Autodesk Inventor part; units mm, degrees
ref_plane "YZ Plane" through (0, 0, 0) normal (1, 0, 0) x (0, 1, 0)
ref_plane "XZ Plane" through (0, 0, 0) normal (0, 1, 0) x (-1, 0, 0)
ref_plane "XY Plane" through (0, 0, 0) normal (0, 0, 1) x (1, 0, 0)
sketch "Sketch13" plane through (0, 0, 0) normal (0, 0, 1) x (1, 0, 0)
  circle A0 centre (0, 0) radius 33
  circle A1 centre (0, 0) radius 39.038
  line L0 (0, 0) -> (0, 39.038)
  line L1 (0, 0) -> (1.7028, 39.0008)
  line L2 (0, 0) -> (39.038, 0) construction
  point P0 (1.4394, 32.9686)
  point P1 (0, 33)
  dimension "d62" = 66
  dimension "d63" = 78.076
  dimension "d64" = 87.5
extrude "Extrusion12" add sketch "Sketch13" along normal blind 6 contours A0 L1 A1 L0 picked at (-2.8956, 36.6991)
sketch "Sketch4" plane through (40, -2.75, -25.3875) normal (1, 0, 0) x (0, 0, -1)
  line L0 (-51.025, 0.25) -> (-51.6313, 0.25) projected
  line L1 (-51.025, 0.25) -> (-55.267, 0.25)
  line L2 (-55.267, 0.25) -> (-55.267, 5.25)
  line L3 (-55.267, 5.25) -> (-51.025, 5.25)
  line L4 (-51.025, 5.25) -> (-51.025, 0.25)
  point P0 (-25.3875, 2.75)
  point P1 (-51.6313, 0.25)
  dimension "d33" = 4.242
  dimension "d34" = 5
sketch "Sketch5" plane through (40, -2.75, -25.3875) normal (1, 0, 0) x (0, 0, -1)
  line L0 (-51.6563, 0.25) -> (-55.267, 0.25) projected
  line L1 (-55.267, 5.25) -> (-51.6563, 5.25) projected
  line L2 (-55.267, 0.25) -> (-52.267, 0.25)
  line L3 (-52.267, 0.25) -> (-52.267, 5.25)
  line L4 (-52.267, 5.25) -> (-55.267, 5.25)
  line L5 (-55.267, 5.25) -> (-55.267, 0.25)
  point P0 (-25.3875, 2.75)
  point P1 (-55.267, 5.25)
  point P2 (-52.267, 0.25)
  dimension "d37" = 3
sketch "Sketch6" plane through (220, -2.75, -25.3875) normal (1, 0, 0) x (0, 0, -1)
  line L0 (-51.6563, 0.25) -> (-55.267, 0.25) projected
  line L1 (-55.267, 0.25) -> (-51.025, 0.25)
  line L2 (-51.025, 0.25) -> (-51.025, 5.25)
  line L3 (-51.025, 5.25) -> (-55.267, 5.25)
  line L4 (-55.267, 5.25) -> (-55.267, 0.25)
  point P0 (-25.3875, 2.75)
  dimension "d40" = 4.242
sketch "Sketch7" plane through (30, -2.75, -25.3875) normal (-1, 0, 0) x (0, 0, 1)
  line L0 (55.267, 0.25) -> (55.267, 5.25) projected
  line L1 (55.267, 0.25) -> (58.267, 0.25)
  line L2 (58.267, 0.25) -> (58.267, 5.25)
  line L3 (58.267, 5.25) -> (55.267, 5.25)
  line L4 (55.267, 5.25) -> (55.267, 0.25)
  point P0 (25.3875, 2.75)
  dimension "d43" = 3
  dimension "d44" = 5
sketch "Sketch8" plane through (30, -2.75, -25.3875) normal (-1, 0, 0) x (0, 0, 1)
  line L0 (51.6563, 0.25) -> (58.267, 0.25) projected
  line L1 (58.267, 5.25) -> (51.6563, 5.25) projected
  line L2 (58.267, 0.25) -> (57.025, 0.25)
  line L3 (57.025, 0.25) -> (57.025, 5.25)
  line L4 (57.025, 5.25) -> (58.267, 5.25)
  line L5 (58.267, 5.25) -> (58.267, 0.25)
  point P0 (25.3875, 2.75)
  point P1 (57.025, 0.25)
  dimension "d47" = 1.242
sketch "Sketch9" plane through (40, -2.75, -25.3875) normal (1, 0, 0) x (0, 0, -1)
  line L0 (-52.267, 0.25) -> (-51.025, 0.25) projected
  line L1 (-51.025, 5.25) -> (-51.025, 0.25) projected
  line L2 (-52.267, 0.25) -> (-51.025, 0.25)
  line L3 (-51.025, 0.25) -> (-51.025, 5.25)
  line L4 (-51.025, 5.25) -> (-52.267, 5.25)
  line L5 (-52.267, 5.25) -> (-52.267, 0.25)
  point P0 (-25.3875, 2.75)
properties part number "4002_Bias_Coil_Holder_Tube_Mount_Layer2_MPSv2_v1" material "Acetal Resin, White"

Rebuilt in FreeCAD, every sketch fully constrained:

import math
import FreeCAD as App
import Part
import Sketcher

V = App.Vector
Q = App.Units.Quantity

doc = App.newDocument("Part")
body = doc.addObject("PartDesign::Body", "Body")

# Sketch on XY plane
sketch1 = body.newObject("Sketcher::SketchObject", "Sketch")
sketch1.AttachmentSupport = (doc.getObject("XY_Plane"), [""])
sketch1.MapMode = "FlatFace"
sketch1.addGeometry(Part.ArcOfCircle(Part.Circle(V(0, 0, 0), V(0, 0, 1), 33), math.radians(90), math.radians(448)), False)
sketch1.addGeometry(Part.LineSegment(V(0, 33, 0), V(0, 39, 0)), False)
sketch1.addGeometry(Part.ArcOfCircle(Part.Circle(V(0, 0, 0), V(0, 0, 1), 39), math.radians(90), math.radians(448)), False)
sketch1.addGeometry(Part.LineSegment(V(1.7, 39, 0), V(1.4, 33, 0)), False)
sketch1.addConstraint(Sketcher.Constraint("Coincident", 0, 1, 1, 1))
sketch1.addConstraint(Sketcher.Constraint("Coincident", 1, 2, 2, 1))
sketch1.addConstraint(Sketcher.Constraint("Coincident", 2, 2, 3, 1))
sketch1.addConstraint(Sketcher.Constraint("Coincident", 3, 2, 0, 2))
sketch1.addConstraint(Sketcher.Constraint("Vertical", 1))
sketch1.addConstraint(Sketcher.Constraint("Coincident", 0, 3, -1, 1))
sketch1.addConstraint(Sketcher.Constraint("Coincident", 2, 3, -1, 1))
sketch1.addConstraint(Sketcher.Constraint("PointOnObject", 0, 1, -2))
sketch1.addConstraint(Sketcher.Constraint("Radius", 0, 33.0))
sketch1.addConstraint(Sketcher.Constraint("Radius", 2, 39.038))
sketch1.addConstraint(Sketcher.Constraint("Angle", 3, Q("-92.5 deg")))
sketch1.addConstraint(Sketcher.Constraint("DistanceX", -1, 1, 2, 2, 1.7028))
pad1 = body.newObject("PartDesign::Pad", "Pad")
pad1.Profile = sketch1
pad1.Length = 6

doc.recompute()
